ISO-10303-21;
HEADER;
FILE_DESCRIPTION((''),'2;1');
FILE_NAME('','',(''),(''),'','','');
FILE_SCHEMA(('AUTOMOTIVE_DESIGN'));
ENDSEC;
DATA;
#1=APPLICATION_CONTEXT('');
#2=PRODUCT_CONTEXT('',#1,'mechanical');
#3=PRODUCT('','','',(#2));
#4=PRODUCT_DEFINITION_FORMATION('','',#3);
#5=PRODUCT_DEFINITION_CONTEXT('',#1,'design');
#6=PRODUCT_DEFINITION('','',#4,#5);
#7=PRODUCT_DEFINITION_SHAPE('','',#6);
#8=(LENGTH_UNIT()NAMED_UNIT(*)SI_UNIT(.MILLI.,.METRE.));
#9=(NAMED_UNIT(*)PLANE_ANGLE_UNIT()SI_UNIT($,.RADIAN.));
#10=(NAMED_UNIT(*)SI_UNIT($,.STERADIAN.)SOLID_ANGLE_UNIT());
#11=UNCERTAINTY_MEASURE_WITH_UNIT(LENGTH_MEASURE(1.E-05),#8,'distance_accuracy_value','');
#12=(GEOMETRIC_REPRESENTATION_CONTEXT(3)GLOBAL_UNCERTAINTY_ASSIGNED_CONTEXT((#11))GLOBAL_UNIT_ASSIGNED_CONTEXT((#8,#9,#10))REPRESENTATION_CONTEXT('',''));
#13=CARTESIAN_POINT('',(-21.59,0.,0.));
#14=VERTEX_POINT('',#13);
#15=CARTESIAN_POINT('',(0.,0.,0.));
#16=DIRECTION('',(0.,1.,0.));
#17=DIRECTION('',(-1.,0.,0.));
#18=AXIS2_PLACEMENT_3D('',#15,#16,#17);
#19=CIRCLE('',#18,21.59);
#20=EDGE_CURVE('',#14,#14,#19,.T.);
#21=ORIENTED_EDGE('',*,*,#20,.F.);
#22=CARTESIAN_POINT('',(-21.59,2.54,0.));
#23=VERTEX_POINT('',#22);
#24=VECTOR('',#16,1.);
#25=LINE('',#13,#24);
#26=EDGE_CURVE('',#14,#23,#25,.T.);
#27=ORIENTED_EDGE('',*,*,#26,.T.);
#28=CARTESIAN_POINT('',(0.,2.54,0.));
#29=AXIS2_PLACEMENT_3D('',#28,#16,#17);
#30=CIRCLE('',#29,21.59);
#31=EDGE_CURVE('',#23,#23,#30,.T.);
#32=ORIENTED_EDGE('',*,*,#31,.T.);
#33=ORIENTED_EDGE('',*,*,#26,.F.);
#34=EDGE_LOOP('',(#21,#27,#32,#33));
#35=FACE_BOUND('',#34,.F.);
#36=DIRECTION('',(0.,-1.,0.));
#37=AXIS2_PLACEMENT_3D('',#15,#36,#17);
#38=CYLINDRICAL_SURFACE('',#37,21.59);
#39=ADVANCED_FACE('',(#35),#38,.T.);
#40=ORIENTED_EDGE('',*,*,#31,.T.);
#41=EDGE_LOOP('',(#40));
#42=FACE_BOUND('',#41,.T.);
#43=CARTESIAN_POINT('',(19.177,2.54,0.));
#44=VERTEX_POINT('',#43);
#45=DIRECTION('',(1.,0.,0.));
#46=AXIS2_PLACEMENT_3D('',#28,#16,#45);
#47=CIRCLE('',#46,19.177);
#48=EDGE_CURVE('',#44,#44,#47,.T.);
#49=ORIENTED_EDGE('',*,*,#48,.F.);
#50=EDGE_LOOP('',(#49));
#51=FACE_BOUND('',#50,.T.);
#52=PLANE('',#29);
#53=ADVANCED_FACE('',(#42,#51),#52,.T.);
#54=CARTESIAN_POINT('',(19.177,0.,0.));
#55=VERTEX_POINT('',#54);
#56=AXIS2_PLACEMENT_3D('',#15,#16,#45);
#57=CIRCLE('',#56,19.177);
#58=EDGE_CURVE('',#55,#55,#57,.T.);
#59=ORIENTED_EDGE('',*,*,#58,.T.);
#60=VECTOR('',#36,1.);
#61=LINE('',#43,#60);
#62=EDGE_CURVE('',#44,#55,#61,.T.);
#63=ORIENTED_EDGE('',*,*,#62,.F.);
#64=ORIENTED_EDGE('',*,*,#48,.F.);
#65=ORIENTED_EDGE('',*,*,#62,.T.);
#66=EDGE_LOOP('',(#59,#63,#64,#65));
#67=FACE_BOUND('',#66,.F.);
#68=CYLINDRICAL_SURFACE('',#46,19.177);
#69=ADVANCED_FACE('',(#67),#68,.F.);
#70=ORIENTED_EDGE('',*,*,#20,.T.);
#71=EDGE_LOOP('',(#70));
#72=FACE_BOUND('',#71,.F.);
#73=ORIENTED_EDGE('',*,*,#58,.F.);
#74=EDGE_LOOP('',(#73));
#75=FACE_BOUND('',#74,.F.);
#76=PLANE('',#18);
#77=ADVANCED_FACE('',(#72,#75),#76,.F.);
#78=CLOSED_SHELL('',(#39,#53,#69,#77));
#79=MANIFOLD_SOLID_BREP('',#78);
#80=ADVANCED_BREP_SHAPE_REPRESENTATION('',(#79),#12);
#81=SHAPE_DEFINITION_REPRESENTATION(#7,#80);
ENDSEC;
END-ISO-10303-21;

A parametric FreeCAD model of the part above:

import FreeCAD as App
import Part
import Sketcher
from FreeCAD import Vector
Q = App.Units.Quantity

doc = App.newDocument("Part")
body = doc.addObject("PartDesign::Body", "Body")

sketch1 = body.newObject("Sketcher::SketchObject", "Sketch")
sketch1.AttachmentSupport = (doc.getObject("XZ_Plane"), [""])
sketch1.MapMode = "FlatFace"
sketch1.addGeometry(Part.Circle(Vector(0, 0, 0), Vector(0, 0, 1), 22), False)
sketch1.addConstraint(Sketcher.Constraint("Coincident", 0, 3, -1, 1))
sketch1.addConstraint(Sketcher.Constraint("Diameter", 0, Q("1.7 in")))
pad1 = body.newObject("PartDesign::Pad", "Pad")
pad1.Profile = sketch1
pad1.Length = Q("0.1 in")
pad1.Reversed = True

sketch2 = body.newObject("Sketcher::SketchObject", "Sketch001")
sketch2.AttachmentSupport = (doc.getObject("XZ_Plane"), [""])
sketch2.MapMode = "FlatFace"
sketch2.AttachmentOffset = App.Placement(Vector(0, 0, -0.1 * 25.4), App.Rotation())
sketch2.addGeometry(Part.Circle(Vector(0, 0, 0), Vector(0, 0, 1), 19), False)
sketch2.addConstraint(Sketcher.Constraint("Coincident", 0, 3, -1, 1))
sketch2.addConstraint(Sketcher.Constraint("Diameter", 0, Q("1.51 in")))
pocket1 = body.newObject("PartDesign::Pocket", "Pocket")
pocket1.Profile = sketch2
pocket1.Length = Q("0.2 in")
pocket1.Reversed = True

doc.recompute()
